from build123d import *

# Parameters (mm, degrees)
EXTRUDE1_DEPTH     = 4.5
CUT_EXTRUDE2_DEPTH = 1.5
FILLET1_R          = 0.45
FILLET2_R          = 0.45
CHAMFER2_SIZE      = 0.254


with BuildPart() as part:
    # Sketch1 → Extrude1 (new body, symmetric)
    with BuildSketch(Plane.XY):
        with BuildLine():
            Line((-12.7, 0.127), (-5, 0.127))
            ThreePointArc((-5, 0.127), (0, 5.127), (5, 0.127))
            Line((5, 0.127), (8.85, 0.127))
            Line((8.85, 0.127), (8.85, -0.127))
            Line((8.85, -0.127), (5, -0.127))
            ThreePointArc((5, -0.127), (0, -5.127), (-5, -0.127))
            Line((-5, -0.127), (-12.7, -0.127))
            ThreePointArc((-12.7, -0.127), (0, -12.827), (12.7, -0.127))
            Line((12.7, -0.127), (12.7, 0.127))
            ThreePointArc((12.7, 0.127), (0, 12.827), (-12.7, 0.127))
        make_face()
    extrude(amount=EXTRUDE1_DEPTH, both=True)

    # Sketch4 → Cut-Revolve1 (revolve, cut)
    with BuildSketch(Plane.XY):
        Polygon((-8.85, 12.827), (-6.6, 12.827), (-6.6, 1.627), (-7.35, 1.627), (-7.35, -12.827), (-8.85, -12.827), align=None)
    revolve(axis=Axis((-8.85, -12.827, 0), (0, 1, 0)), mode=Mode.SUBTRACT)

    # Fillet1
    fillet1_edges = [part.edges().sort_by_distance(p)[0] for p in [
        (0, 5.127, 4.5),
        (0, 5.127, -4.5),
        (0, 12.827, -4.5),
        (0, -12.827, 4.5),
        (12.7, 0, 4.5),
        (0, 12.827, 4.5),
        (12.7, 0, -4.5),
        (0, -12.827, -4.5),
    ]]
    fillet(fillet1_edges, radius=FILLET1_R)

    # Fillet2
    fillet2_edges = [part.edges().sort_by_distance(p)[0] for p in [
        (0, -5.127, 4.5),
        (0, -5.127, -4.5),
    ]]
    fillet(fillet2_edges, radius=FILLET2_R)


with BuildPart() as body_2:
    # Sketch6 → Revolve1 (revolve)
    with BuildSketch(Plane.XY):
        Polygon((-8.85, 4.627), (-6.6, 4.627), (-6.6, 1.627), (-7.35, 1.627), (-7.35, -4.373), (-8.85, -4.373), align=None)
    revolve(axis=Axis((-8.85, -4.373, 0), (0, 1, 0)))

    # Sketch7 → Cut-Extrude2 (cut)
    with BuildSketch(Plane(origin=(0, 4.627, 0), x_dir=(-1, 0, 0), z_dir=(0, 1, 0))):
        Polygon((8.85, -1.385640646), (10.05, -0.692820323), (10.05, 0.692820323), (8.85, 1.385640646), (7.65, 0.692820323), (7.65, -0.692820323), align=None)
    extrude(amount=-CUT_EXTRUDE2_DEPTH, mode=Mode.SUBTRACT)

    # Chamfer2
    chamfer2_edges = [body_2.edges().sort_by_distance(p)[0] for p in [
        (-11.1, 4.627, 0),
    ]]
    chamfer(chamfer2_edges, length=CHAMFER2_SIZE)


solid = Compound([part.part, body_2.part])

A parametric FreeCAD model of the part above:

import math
import FreeCAD as App
import Part
import Sketcher
from FreeCAD import Vector
Q = App.Units.Quantity


def edges_at(feature, points):
    """Names of the edges that pass closest to the given points."""
    edges = feature.Shape.Edges
    near = lambda p: min(range(len(edges)), key=lambda i: edges[i].distToShape(Part.Vertex(*p))[0])
    return sorted({f"Edge{near(p) + 1}" for p in points})


def add_polygon(sketch, points):
    """Adds a closed chain of lines whose ends are joined by coincident constraints."""
    first, n = sketch.GeometryCount, len(points)
    for a, b in zip(points, points[1:] + points[:1]):
        sketch.addGeometry(Part.LineSegment(App.Vector(*a, 0), App.Vector(*b, 0)), False)
    for i in range(n):
        sketch.addConstraint(Sketcher.Constraint("Coincident", first + i, 2, first + (i + 1) % n, 1))

doc = App.newDocument("Part")
body = doc.addObject("PartDesign::Body", "Body")

# Sketch on XY plane
sketch1 = body.newObject("Sketcher::SketchObject", "Sketch")
sketch1.AttachmentSupport = (doc.getObject("XY_Plane"), [""])
sketch1.MapMode = "FlatFace"
sketch1.addGeometry(Part.LineSegment(Vector(-12.7, 0.13, 0), Vector(-5, 0.13, 0)), False)
sketch1.addGeometry(Part.ArcOfCircle(Part.Circle(Vector(0, 0.13, 0), Vector(0, 0, 1), 5), math.radians(0), math.radians(180)), False)
sketch1.addGeometry(Part.LineSegment(Vector(5, 0.13, 0), Vector(8.85, 0.13, 0)), False)
sketch1.addGeometry(Part.LineSegment(Vector(8.85, 0.13, 0), Vector(8.85, -0.13, 0)), False)
sketch1.addGeometry(Part.LineSegment(Vector(8.85, -0.13, 0), Vector(5, -0.13, 0)), False)
sketch1.addGeometry(Part.ArcOfCircle(Part.Circle(Vector(0, -0.13, 0), Vector(0, 0, 1), 5), math.radians(180), math.radians(360)), False)
sketch1.addGeometry(Part.LineSegment(Vector(-5, -0.13, 0), Vector(-12.7, -0.13, 0)), False)
sketch1.addGeometry(Part.ArcOfCircle(Part.Circle(Vector(0, -0.13, 0), Vector(0, 0, 1), 12.7), math.radians(180), math.radians(360)), False)
sketch1.addGeometry(Part.LineSegment(Vector(12.7, -0.13, 0), Vector(12.7, 0.13, 0)), False)
sketch1.addGeometry(Part.ArcOfCircle(Part.Circle(Vector(0, 0.13, 0), Vector(0, 0, 1), 12.7), math.radians(0), math.radians(180)), False)
sketch1.addConstraint(Sketcher.Constraint("Coincident", 0, 2, 1, 2))
sketch1.addConstraint(Sketcher.Constraint("Coincident", 1, 1, 2, 1))
sketch1.addConstraint(Sketcher.Constraint("Coincident", 2, 2, 3, 1))
sketch1.addConstraint(Sketcher.Constraint("Coincident", 3, 2, 4, 1))
sketch1.addConstraint(Sketcher.Constraint("Coincident", 4, 2, 5, 2))
sketch1.addConstraint(Sketcher.Constraint("Coincident", 5, 1, 6, 1))
sketch1.addConstraint(Sketcher.Constraint("Coincident", 6, 2, 7, 1))
sketch1.addConstraint(Sketcher.Constraint("Tangent", 7, 2, 8, 1))
sketch1.addConstraint(Sketcher.Constraint("Tangent", 8, 2, 9, 1))
sketch1.addConstraint(Sketcher.Constraint("Coincident", 9, 2, 0, 1))
sketch1.addConstraint(Sketcher.Constraint("Horizontal", 0))
sketch1.addConstraint(Sketcher.Constraint("Horizontal", 2))
sketch1.addConstraint(Sketcher.Constraint("Vertical", 3))
sketch1.addConstraint(Sketcher.Constraint("Horizontal", 4))
sketch1.addConstraint(Sketcher.Constraint("Horizontal", 6))
sketch1.addConstraint(Sketcher.Constraint("Vertical", 8))
sketch1.addConstraint(Sketcher.Constraint("Coincident", 7, 3, 5, 3))
sketch1.addConstraint(Sketcher.Constraint("Coincident", 9, 3, 1, 3))
sketch1.addConstraint(Sketcher.Constraint("Equal", 1, 5))
sketch1.addConstraint(Sketcher.Constraint("Equal", 7, 9))
sketch1.addConstraint(Sketcher.Constraint("Symmetric", 1, 3, 5, 3, -1, 1))
sketch1.addConstraint(Sketcher.Constraint("Horizontal", 9, 3, 0, 2))
sketch1.addConstraint(Sketcher.Constraint("Horizontal", 0, 2, 1, 1))
sketch1.addConstraint(Sketcher.Constraint("Horizontal", 7, 3, 3, 2))
sketch1.addConstraint(Sketcher.Constraint("Horizontal", 4, 2, 5, 1))
sketch1.addConstraint(Sketcher.Constraint("Radius", 1, 5.0))
sketch1.addConstraint(Sketcher.Constraint("Radius", 7, 12.7))
sketch1.addConstraint(Sketcher.Constraint("DistanceX", 2, 1, 2, 2, 3.85))
sketch1.addConstraint(Sketcher.Constraint("DistanceY", 3, 2, 3, 1, 0.254))
pad1 = body.newObject("PartDesign::Pad", "Pad")
pad1.Profile = sketch1
pad1.Length = 9
pad1.Midplane = True

# Sketch on XY plane
sketch2 = body.newObject("Sketcher::SketchObject", "Sketch001")
sketch2.AttachmentSupport = (doc.getObject("XY_Plane"), [""])
sketch2.MapMode = "FlatFace"
add_polygon(sketch2, [(-6.6, 12.8), (-8.8, 12.8), (-8.8, -12.8), (-7.3, -12.8), (-7.3, 1.6), (-6.6, 1.6)])  # lines 0-5
sketch2.addGeometry(Part.LineSegment(Vector(-8.8, -12.8, 0), Vector(-8.8, 12.8, 0)), True)  # axis
sketch2.addConstraint(Sketcher.Constraint("Horizontal", 0))
sketch2.addConstraint(Sketcher.Constraint("Vertical", 1))
sketch2.addConstraint(Sketcher.Constraint("Horizontal", 2))
sketch2.addConstraint(Sketcher.Constraint("Vertical", 3))
sketch2.addConstraint(Sketcher.Constraint("Horizontal", 4))
sketch2.addConstraint(Sketcher.Constraint("Vertical", 5))
sketch2.addConstraint(Sketcher.Constraint("Vertical", 6))
sketch2.addConstraint(Sketcher.Constraint("Coincident", 6, 1, 1, 2))
sketch2.addConstraint(Sketcher.Constraint("Horizontal", 5, 2, 6, 2))
sketch2.addConstraint(Sketcher.Constraint("DistanceX", 2, 1, 2, 2, 1.5))
sketch2.addConstraint(Sketcher.Constraint("DistanceY", 5, 1, 5, 2, 11.2))
sketch2.addConstraint(Sketcher.Constraint("DistanceX", 0, 2, 0, 1, 2.25))
sketch2.addConstraint(Sketcher.Constraint("DistanceX", 4, 2, -1, 1, 6.6))
sketch2.addConstraint(Sketcher.Constraint("DistanceY", 1, 2, 1, 1, 25.654))
sketch2.addConstraint(Sketcher.Constraint("DistanceY", -1, 1, 0, 2, 12.827))
groove = body.newObject("PartDesign::Groove", "Groove")
groove.Profile = sketch2
groove.ReferenceAxis = (sketch2, ["Axis0"])
groove.Angle = 360
doc.recompute()

fillet = body.newObject("PartDesign::Fillet", "Fillet")
fillet.Base = (groove, edges_at(groove, [
    (0, 5.127, 4.5),
    (0, 5.127, -4.5),
    (0, 12.827, -4.5),
    (0, -12.827, 4.5),
    (12.7, 0, 4.5),
    (0, 12.827, 4.5),
    (12.7, 0, -4.5),
    (0, -12.827, -4.5),
]))
fillet.Radius = 0.45
doc.recompute()

fillet2 = body.newObject("PartDesign::Fillet", "Fillet001")
fillet2.Base = (fillet, edges_at(fillet, [(0, -5.127, 4.5), (0, -5.127, -4.5)]))
fillet2.Radius = 0.45
body2 = doc.addObject("PartDesign::Body", "Body001")

# Sketch on XY plane
sketch3 = body2.newObject("Sketcher::SketchObject", "Sketch002")
sketch3.AttachmentSupport = (doc.getObject("XY_Plane001"), [""])
sketch3.MapMode = "FlatFace"
add_polygon(sketch3, [(-6.6, 4.6), (-8.8, 4.6), (-8.8, -4.4), (-7.3, -4.4), (-7.3, 1.6), (-6.6, 1.6)])  # lines 0-5
sketch3.addGeometry(Part.LineSegment(Vector(-8.8, -4.4, 0), Vector(-8.8, 4.6, 0)), True)  # axis
sketch3.addConstraint(Sketcher.Constraint("Horizontal", 0))
sketch3.addConstraint(Sketcher.Constraint("Vertical", 1))
sketch3.addConstraint(Sketcher.Constraint("Horizontal", 2))
sketch3.addConstraint(Sketcher.Constraint("Vertical", 3))
sketch3.addConstraint(Sketcher.Constraint("Horizontal", 4))
sketch3.addConstraint(Sketcher.Constraint("Vertical", 5))
sketch3.addConstraint(Sketcher.Constraint("Vertical", 6))
sketch3.addConstraint(Sketcher.Constraint("Coincident", 6, 1, 1, 2))
sketch3.addConstraint(Sketcher.Constraint("Horizontal", 5, 2, 6, 2))
sketch3.addConstraint(Sketcher.Constraint("DistanceY", 1, 2, 1, 1, 9.0))
sketch3.addConstraint(Sketcher.Constraint("DistanceY", 3, 1, 3, 2, 6.0))
sketch3.addConstraint(Sketcher.Constraint("DistanceX", 2, 1, 2, 2, 1.5))
sketch3.addConstraint(Sketcher.Constraint("DistanceX", 0, 2, 0, 1, 2.25))
sketch3.addConstraint(Sketcher.Constraint("DistanceX", 4, 2, -1, 1, 6.6))
sketch3.addConstraint(Sketcher.Constraint("DistanceY", -1, 1, 0, 2, 4.627))
revolution = body2.newObject("PartDesign::Revolution", "Revolution")
revolution.Profile = sketch3
revolution.ReferenceAxis = (sketch3, ["Axis0"])
revolution.Angle = 360

# Sketch on XZ plane
sketch4 = body2.newObject("Sketcher::SketchObject", "Sketch003")
sketch4.AttachmentSupport = (doc.getObject("XZ_Plane001"), [""])
sketch4.MapMode = "FlatFace"
sketch4.AttachmentOffset = App.Placement(Vector(0, 0, -4.627), App.Rotation())
add_polygon(sketch4, [(-8.8, -1.4), (-10.1, -0.7), (-10.1, 0.7), (-8.8, 1.4), (-7.7, 0.7), (-7.7, -0.7)])  # lines 0-5
sketch4.addConstraint(Sketcher.Constraint("Vertical", 1))
sketch4.addConstraint(Sketcher.Constraint("Vertical", 4))
sketch4.addConstraint(Sketcher.Constraint("Symmetric", 2, 2, 5, 2, -1))
sketch4.addConstraint(Sketcher.Constraint("Parallel", 0, 3))
sketch4.addConstraint(Sketcher.Constraint("Parallel", 2, 5))
sketch4.addConstraint(Sketcher.Constraint("Horizontal", 1, 2, 3, 2))
sketch4.addConstraint(Sketcher.Constraint("Horizontal", 0, 2, 4, 2))
sketch4.addConstraint(Sketcher.Constraint("Angle", 0, Q("150 deg")))
sketch4.addConstraint(Sketcher.Constraint("DistanceX", 1, 2, 2, 2, 1.2))
sketch4.addConstraint(Sketcher.Constraint("DistanceX", 0, 2, -1, 1, 10.05))
sketch4.addConstraint(Sketcher.Constraint("DistanceY", 1, 1, 1, 2, 1.385641))
pocket1 = body2.newObject("PartDesign::Pocket", "Pocket")
pocket1.Profile = sketch4
pocket1.Length = 1.5
pocket1.Reversed = True
doc.recompute()

chamfer = body2.newObject("PartDesign::Chamfer", "Chamfer")
chamfer.Base = (pocket1, edges_at(pocket1, [(-11.1, 4.627, 0)]))
chamfer.Size = 0.254

doc.recompute()
